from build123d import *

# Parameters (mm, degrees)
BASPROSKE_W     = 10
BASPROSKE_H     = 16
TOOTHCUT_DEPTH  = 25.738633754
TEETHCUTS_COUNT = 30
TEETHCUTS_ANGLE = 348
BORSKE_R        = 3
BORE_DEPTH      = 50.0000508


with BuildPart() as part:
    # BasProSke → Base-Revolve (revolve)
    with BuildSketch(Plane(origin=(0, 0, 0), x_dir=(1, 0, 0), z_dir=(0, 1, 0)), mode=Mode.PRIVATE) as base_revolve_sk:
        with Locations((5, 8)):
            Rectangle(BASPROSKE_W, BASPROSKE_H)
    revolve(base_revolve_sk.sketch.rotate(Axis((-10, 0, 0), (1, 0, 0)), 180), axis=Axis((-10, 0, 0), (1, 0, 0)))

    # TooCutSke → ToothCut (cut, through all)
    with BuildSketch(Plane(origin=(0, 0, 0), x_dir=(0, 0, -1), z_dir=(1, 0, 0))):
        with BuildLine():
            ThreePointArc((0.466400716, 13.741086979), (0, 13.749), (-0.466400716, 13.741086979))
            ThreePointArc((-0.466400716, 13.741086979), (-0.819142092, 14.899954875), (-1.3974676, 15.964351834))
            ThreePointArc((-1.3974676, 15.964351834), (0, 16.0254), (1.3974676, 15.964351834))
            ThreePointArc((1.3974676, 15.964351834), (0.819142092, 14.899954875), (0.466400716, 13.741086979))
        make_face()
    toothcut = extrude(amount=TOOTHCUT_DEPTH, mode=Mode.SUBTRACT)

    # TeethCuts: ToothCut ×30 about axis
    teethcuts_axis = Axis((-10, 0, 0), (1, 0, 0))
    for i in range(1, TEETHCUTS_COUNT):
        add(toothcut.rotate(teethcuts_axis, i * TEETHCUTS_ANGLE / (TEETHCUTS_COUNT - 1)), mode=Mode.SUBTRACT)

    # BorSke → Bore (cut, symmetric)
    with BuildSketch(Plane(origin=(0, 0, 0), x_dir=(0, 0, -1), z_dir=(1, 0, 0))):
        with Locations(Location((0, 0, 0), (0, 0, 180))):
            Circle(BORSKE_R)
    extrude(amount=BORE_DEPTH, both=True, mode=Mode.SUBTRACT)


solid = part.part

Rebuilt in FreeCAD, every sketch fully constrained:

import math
import FreeCAD as App
import Part
import Sketcher
Q = App.Units.Quantity


def add_polygon(sketch, points):
    """Adds a closed chain of lines whose ends are joined by coincident constraints."""
    first, n = sketch.GeometryCount, len(points)
    for a, b in zip(points, points[1:] + points[:1]):
        sketch.addGeometry(Part.LineSegment(App.Vector(*a, 0), App.Vector(*b, 0)), False)
    for i in range(n):
        sketch.addConstraint(Sketcher.Constraint("Coincident", first + i, 2, first + (i + 1) % n, 1))

doc = App.newDocument("Part")
body = doc.addObject("PartDesign::Body", "Body")

# Sketch on XZ plane
sketch1 = doc.addObject("Sketcher::SketchObject", "Sketch")
body.addObject(sketch1)
sketch1.AttachmentSupport = (doc.XZ_Plane, [""])
sketch1.MapMode = "FlatFace"
add_polygon(sketch1, [(0, -16), (0, 0), (10, 0), (10, -16)])  # lines 0-3
sketch1.addConstraint([
    Sketcher.Constraint("Vertical", 0),
    Sketcher.Constraint("Horizontal", 1),
    Sketcher.Constraint("Vertical", 2),
    Sketcher.Constraint("Horizontal", 3),
    Sketcher.Constraint("Coincident", 0, 2, -1, 1),
    Sketcher.Constraint("DistanceX", 1, 1, 1, 2, Q("10 mm")),
    Sketcher.Constraint("DistanceY", 0, 1, 0, 2, Q("16 mm")),
])
revolution = doc.addObject("PartDesign::Revolution", "Revolution")
body.addObject(revolution)
revolution.Profile = sketch1
revolution.ReferenceAxis = (sketch1, ["H_Axis"])
revolution.Angle = 360

# Sketch on YZ plane
sketch2 = doc.addObject("Sketcher::SketchObject", "Sketch001")
body.addObject(sketch2)
sketch2.AttachmentSupport = (doc.YZ_Plane, [""])
sketch2.MapMode = "FlatFace"
sketch2.addGeometry([
    Part.ArcOfCircle(Part.Circle(App.Vector(0, 0, 0), App.Vector(0, 0, 1), 13.749), math.radians(-1.94399), math.radians(1.94399)),
    Part.ArcOfCircle(Part.Circle(App.Vector(12.582284, -6.353435, 0), App.Vector(0, 0, 1), 6), math.radians(55.689458), math.radians(78.864269)),
    Part.ArcOfCircle(Part.Circle(App.Vector(0, 0, 0), App.Vector(0, 0, 1), 16.0254), math.radians(-5.002735), math.radians(5.002735)),
    Part.ArcOfCircle(Part.Circle(App.Vector(12.582284, 6.353435, 0), App.Vector(0, 0, 1), 6), math.radians(-78.864269), math.radians(-55.689458)),
], False)
sketch2.addConstraint([
    Sketcher.Constraint("Coincident", 0, 1, 1, 2),
    Sketcher.Constraint("Coincident", 1, 1, 2, 1),
    Sketcher.Constraint("Coincident", 2, 2, 3, 2),
    Sketcher.Constraint("Coincident", 3, 1, 0, 2),
    Sketcher.Constraint("Coincident", 0, 3, -1, 1),
    Sketcher.Constraint("Coincident", 2, 3, -1, 1),
    Sketcher.Constraint("Equal", 1, 3),
    Sketcher.Constraint("Symmetric", 1, 3, 3, 3, -1),
    Sketcher.Constraint("Radius", 1, Q("6 mm")),
    Sketcher.Constraint("Radius", 0, Q("13.749 mm")),
    Sketcher.Constraint("Radius", 2, Q("16.0254 mm")),
    Sketcher.Constraint("DistanceY", 0, 1, -1, 1, Q("0.466401 mm")),
    Sketcher.Constraint("DistanceX", -1, 1, 1, 1, Q("15.964352 mm")),
])
pocket1 = doc.addObject("PartDesign::Pocket", "Pocket")
body.addObject(pocket1)
pocket1.Profile = sketch2
pocket1.Type = "ThroughAll"
pocket1.Reversed = True
doc.recompute()

polarpattern = doc.addObject("PartDesign::PolarPattern", "PolarPattern")
body.addObject(polarpattern)
polarpattern.Originals = [pocket1]
polarpattern.Axis = (doc.X_Axis, [""])
polarpattern.Angle = 360
polarpattern.Occurrences = 30
body.Tip = polarpattern

# Sketch on YZ plane
sketch3 = doc.addObject("Sketcher::SketchObject", "Sketch002")
body.addObject(sketch3)
sketch3.AttachmentSupport = (doc.YZ_Plane, [""])
sketch3.MapMode = "FlatFace"
sketch3.addGeometry(Part.Circle(App.Vector(0, 0, 0), App.Vector(0, 0, 1), 3), False)
sketch3.addConstraint([
    Sketcher.Constraint("Coincident", 0, 3, -1, 1),
    Sketcher.Constraint("Diameter", 0, Q("6 mm")),
])
pocket2 = doc.addObject("PartDesign::Pocket", "Pocket001")
body.addObject(pocket2)
pocket2.Profile = sketch3
pocket2.Length = 100.000102
pocket2.Midplane = True

doc.recompute()
